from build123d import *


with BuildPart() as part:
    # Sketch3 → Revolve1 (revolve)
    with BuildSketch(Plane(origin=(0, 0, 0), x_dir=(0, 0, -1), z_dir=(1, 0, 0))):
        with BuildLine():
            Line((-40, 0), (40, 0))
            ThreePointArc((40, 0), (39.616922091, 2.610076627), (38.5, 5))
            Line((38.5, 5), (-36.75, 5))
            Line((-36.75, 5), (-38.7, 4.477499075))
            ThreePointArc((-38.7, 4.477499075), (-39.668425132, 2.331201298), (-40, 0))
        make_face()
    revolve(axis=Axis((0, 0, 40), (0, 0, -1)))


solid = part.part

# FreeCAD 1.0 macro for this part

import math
import FreeCAD as App
import Part
import Sketcher

V = App.Vector
Q = App.Units.Quantity

doc = App.newDocument("Part")
body = doc.addObject("PartDesign::Body", "Body")

sketch1 = body.newObject("Sketcher::SketchObject", "Sketch")
sketch1.AttachmentSupport = (doc.getObject("YZ_Plane"), [""])
sketch1.MapMode = "FlatFace"
sketch1.addGeometry(Part.LineSegment(V(0, 40, 0), V(0, -40, 0)), False)
sketch1.addGeometry(Part.ArcOfCircle(Part.Circle(V(0, -30.9, 0), V(0, 0, 1), 9.1), math.radians(-90), math.radians(-57)), False)
sketch1.addGeometry(Part.LineSegment(V(5, -38.5, 0), V(5, 36.8, 0)), False)
sketch1.addGeometry(Part.LineSegment(V(5, 36.8, 0), V(4.5, 38.7, 0)), False)
sketch1.addGeometry(Part.ArcOfCircle(Part.Circle(V(0, 31.6, 0), V(0, 0, 1), 8.4), math.radians(58), math.radians(90)), False)
sketch1.addConstraint(Sketcher.Constraint("Coincident", 0, 2, 1, 1))
sketch1.addConstraint(Sketcher.Constraint("Coincident", 1, 2, 2, 1))
sketch1.addConstraint(Sketcher.Constraint("Coincident", 2, 2, 3, 1))
sketch1.addConstraint(Sketcher.Constraint("Coincident", 3, 2, 4, 1))
sketch1.addConstraint(Sketcher.Constraint("Coincident", 4, 2, 0, 1))
sketch1.addConstraint(Sketcher.Constraint("Vertical", 0))
sketch1.addConstraint(Sketcher.Constraint("Vertical", 2))
sketch1.addConstraint(Sketcher.Constraint("Symmetric", 0, 2, 4, 2, -1, 1))
sketch1.addConstraint(Sketcher.Constraint("PointOnObject", 1, 3, -2))
sketch1.addConstraint(Sketcher.Constraint("PointOnObject", 4, 3, -2))
sketch1.addConstraint(Sketcher.Constraint("DistanceY", 0, 2, 0, 1, Q("80 mm")))
sketch1.addConstraint(Sketcher.Constraint("Angle", 3, Q("105 deg")))
sketch1.addConstraint(Sketcher.Constraint("DistanceX", -1, 1, 1, 2, Q("5 mm")))
sketch1.addConstraint(Sketcher.Constraint("DistanceY", 2, 1, 2, 2, Q("75.25 mm")))
sketch1.addConstraint(Sketcher.Constraint("DistanceY", 1, 2, -1, 1, Q("38.5 mm")))
sketch1.addConstraint(Sketcher.Constraint("DistanceY", -1, 1, 3, 2, Q("38.7 mm")))
revolution = body.newObject("PartDesign::Revolution", "Revolution")
revolution.Profile = sketch1
revolution.ReferenceAxis = (sketch1, ["V_Axis"])
revolution.Angle = 360

doc.recompute()
